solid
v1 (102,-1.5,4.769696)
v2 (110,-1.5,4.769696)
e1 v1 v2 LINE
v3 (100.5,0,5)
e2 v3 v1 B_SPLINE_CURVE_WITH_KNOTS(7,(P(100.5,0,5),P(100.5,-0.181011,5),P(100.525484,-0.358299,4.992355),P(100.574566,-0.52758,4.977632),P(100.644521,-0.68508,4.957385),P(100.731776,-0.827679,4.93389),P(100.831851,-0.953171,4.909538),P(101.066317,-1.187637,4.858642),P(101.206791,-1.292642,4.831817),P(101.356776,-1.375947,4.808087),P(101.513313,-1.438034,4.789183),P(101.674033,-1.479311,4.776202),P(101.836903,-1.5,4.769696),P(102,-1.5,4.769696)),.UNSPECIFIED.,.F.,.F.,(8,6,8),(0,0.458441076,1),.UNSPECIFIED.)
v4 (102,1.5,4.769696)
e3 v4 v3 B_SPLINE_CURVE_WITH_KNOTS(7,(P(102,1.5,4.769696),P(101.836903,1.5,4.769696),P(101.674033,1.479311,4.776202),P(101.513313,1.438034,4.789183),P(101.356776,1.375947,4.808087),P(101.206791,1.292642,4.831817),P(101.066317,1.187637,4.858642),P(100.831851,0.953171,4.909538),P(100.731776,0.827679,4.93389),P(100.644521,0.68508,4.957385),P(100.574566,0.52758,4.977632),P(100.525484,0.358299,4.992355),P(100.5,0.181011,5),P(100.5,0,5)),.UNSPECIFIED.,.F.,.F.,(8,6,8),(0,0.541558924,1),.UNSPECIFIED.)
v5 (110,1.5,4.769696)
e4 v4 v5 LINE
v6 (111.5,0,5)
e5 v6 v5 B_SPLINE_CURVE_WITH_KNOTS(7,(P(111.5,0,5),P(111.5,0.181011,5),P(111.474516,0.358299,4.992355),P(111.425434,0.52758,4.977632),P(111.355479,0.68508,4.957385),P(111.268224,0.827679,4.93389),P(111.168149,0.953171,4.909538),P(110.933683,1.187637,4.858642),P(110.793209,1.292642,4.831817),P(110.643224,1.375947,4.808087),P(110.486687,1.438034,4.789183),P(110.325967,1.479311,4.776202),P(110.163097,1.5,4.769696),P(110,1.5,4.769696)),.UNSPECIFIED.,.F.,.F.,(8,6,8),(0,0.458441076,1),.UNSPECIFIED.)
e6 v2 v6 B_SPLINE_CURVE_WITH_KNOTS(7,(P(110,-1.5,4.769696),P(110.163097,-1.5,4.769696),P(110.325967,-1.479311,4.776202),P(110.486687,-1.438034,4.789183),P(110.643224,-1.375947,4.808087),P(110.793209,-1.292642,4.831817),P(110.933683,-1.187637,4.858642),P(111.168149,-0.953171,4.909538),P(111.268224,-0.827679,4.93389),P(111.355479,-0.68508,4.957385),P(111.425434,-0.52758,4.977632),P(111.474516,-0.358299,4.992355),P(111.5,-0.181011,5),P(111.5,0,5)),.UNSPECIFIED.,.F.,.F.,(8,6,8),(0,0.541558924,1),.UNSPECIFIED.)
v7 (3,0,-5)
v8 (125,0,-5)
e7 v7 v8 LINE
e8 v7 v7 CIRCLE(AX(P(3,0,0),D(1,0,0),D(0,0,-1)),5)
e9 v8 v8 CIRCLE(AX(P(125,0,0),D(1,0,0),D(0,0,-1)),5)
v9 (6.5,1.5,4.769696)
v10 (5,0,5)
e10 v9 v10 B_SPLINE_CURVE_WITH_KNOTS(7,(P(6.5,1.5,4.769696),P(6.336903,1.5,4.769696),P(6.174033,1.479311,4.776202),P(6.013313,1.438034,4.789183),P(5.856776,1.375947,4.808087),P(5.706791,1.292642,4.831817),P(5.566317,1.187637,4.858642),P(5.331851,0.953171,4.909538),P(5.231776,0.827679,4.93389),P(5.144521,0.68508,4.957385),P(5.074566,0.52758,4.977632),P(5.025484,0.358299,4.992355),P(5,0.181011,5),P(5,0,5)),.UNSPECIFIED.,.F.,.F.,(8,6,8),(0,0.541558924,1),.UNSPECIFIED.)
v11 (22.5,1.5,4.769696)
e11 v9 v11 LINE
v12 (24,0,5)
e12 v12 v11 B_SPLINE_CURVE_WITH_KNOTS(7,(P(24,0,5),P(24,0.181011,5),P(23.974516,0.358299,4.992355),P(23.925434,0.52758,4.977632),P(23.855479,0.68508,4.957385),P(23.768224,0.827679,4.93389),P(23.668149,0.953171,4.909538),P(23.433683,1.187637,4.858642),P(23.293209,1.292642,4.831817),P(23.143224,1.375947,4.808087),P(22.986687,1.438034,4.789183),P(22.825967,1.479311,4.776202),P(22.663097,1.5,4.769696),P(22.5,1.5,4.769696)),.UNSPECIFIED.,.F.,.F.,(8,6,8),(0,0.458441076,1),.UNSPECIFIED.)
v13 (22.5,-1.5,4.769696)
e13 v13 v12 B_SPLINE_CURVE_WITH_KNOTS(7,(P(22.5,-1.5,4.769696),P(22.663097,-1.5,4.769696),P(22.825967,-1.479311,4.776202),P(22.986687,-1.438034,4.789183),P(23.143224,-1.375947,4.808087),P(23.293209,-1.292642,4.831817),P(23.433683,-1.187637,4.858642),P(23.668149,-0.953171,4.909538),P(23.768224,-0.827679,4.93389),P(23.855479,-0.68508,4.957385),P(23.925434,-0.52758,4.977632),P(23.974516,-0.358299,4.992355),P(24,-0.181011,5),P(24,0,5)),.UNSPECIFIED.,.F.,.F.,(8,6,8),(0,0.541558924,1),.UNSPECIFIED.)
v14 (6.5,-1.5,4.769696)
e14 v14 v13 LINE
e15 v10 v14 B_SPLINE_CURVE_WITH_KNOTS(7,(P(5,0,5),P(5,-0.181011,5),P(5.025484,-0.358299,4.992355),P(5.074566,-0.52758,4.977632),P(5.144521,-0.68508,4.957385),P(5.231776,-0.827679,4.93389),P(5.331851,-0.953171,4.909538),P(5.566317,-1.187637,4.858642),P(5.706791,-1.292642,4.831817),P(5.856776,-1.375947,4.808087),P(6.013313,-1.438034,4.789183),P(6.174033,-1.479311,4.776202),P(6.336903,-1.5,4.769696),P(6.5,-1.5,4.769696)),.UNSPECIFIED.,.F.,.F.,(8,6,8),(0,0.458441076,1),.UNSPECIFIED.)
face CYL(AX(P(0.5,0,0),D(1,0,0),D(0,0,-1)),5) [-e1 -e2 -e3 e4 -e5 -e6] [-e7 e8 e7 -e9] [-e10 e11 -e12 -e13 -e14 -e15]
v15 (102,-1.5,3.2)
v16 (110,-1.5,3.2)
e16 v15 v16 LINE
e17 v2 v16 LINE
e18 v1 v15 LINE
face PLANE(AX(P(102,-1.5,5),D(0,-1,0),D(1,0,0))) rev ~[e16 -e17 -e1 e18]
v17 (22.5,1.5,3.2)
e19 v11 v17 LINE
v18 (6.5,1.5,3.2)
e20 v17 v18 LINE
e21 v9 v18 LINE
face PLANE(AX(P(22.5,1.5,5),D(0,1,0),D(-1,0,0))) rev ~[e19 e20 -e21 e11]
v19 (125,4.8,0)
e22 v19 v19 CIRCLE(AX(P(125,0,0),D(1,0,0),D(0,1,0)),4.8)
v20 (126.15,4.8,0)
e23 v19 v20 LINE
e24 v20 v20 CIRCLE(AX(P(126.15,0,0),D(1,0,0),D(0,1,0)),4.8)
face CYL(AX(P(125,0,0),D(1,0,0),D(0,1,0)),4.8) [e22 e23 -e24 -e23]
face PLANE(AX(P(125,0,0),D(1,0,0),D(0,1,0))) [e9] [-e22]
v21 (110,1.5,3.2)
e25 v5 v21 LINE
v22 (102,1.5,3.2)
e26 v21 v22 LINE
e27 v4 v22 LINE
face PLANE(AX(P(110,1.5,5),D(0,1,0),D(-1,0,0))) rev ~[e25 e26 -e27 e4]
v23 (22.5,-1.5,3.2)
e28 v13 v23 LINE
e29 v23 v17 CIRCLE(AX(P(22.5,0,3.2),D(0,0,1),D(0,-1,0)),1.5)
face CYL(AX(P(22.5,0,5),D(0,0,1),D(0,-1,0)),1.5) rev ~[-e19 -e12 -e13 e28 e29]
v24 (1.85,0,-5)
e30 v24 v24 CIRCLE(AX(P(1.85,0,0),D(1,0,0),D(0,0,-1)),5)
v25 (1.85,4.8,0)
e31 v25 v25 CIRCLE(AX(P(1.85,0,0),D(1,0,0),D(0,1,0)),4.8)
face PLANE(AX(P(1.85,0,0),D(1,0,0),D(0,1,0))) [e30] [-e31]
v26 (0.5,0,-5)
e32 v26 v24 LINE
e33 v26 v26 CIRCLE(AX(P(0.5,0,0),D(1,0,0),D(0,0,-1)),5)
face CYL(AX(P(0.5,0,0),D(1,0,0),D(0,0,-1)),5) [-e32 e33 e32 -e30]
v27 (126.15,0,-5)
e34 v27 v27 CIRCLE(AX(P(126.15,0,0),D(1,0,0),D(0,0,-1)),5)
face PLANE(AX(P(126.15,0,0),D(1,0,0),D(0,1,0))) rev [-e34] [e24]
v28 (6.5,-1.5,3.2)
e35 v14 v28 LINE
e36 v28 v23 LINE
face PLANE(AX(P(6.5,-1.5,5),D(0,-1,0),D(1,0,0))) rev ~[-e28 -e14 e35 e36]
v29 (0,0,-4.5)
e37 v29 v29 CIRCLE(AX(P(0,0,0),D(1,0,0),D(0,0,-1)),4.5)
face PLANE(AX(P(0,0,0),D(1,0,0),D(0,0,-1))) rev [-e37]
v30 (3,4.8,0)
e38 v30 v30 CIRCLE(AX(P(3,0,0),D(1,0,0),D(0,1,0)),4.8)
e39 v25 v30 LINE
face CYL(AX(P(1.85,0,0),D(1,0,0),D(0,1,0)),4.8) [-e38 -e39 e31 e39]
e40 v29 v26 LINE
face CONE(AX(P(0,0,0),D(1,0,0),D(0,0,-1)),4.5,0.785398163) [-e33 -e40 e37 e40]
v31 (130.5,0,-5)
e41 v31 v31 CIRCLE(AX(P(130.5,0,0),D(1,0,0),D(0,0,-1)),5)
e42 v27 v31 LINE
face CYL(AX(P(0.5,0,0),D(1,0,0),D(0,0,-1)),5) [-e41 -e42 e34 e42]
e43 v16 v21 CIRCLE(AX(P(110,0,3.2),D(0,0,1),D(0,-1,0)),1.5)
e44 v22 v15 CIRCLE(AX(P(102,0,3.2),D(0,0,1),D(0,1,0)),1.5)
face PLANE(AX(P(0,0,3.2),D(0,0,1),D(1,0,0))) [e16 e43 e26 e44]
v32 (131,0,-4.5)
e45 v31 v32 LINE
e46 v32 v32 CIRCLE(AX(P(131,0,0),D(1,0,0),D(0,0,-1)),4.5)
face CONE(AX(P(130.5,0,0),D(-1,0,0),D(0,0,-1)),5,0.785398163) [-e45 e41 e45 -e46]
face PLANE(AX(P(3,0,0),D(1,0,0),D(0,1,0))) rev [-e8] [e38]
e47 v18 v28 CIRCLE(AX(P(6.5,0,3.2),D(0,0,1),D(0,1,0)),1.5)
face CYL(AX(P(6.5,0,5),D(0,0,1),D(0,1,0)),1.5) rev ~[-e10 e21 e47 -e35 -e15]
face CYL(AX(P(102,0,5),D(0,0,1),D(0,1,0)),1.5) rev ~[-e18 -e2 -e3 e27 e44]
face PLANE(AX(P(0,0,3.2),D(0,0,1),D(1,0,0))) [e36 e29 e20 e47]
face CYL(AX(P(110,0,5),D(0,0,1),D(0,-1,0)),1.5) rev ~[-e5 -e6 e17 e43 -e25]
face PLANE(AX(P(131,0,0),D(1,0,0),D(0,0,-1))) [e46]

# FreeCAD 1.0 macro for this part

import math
import FreeCAD as App
import Part
import Sketcher
Q = App.Units.Quantity


def add_polygon(sketch, points):
    """Adds a closed chain of lines whose ends are joined by coincident constraints."""
    first, n = sketch.GeometryCount, len(points)
    for a, b in zip(points, points[1:] + points[:1]):
        sketch.addGeometry(Part.LineSegment(App.Vector(*a, 0), App.Vector(*b, 0)), False)
    for i in range(n):
        sketch.addConstraint(Sketcher.Constraint("Coincident", first + i, 2, first + (i + 1) % n, 1))

doc = App.newDocument("Part")
body = doc.addObject("PartDesign::Body", "Body")

sketch1 = body.newObject("Sketcher::SketchObject", "Sketch")
sketch1.AttachmentSupport = (doc.getObject("XZ_Plane"), [""])
sketch1.MapMode = "FlatFace"
add_polygon(sketch1, [(0, 0), (131, 0), (131, -4.5), (130.5, -5), (0.5, -5), (0, -4.5)])
sketch1.addConstraint([
    Sketcher.Constraint("Horizontal", 0),
    Sketcher.Constraint("Vertical", 1),
    Sketcher.Constraint("Horizontal", 3),
    Sketcher.Constraint("Vertical", 5),
    Sketcher.Constraint("Coincident", 5, 2, -1, 1),
    Sketcher.Constraint("Perpendicular", 2, 4),
    Sketcher.Constraint("Horizontal", 1, 2, 4, 2),
    Sketcher.Constraint("Equal", 2, 4),
    Sketcher.Constraint("DistanceX", 0, 1, 0, 2, Q("131 mm")),
    Sketcher.Constraint("DistanceX", 3, 2, 3, 1, Q("130 mm")),
    Sketcher.Constraint("DistanceY", 1, 2, 1, 1, Q("4.5 mm")),
])
revolution = body.newObject("PartDesign::Revolution", "Revolution")
revolution.Profile = sketch1
revolution.ReferenceAxis = (sketch1, ["H_Axis"])
revolution.Angle = 360

sketch2 = body.newObject("Sketcher::SketchObject", "Sketch001")
sketch2.AttachmentSupport = (doc.getObject("XY_Plane"), [""])
sketch2.MapMode = "FlatFace"
add_polygon(sketch2, [(3, 9.6), (1.9, 9.6), (1.9, 4.8), (3, 4.8)])
sketch2.addConstraint([
    Sketcher.Constraint("Horizontal", 0),
    Sketcher.Constraint("Vertical", 1),
    Sketcher.Constraint("Horizontal", 2),
    Sketcher.Constraint("Vertical", 3),
    Sketcher.Constraint("DistanceY", 1, 2, 1, 1, Q("4.8 mm")),
    Sketcher.Constraint("DistanceX", -1, 1, 2, 2, Q("3 mm")),
    Sketcher.Constraint("DistanceX", 0, 2, 0, 1, Q("1.15 mm")),
    Sketcher.Constraint("DistanceY", -1, 1, 0, 2, Q("9.6 mm")),
])
groove = body.newObject("PartDesign::Groove", "Groove")
groove.Profile = sketch2
groove.ReferenceAxis = (sketch2, ["H_Axis"])
groove.Angle = 360

sketch3 = body.newObject("Sketcher::SketchObject", "Sketch002")
sketch3.AttachmentSupport = (doc.getObject("XY_Plane"), [""])
sketch3.MapMode = "FlatFace"
add_polygon(sketch3, [(126.2, 9.6), (125, 9.6), (125, 4.8), (126.2, 4.8)])
sketch3.addConstraint([
    Sketcher.Constraint("Horizontal", 0),
    Sketcher.Constraint("Vertical", 1),
    Sketcher.Constraint("Horizontal", 2),
    Sketcher.Constraint("Vertical", 3),
    Sketcher.Constraint("DistanceY", 1, 2, 1, 1, Q("4.8 mm")),
    Sketcher.Constraint("DistanceX", -1, 1, 0, 2, Q("125 mm")),
    Sketcher.Constraint("DistanceX", 0, 2, 0, 1, Q("1.15 mm")),
    Sketcher.Constraint("DistanceY", -1, 1, 0, 2, Q("9.6 mm")),
])
groove2 = body.newObject("PartDesign::Groove", "Groove001")
groove2.Profile = sketch3
groove2.ReferenceAxis = (sketch3, ["H_Axis"])
groove2.Angle = 360

sketch4 = body.newObject("Sketcher::SketchObject", "Sketch003")
sketch4.AttachmentSupport = (doc.getObject("XY_Plane"), [""])
sketch4.MapMode = "FlatFace"
sketch4.AttachmentOffset = App.Placement(App.Vector(0, 0, 5), App.Rotation())
sketch4.addGeometry([
    Part.LineSegment(App.Vector(22.5, 1.5, 0), App.Vector(6.5, 1.5, 0)),
    Part.ArcOfCircle(Part.Circle(App.Vector(6.5, 0, 0), App.Vector(0, 0, 1), 1.5), math.radians(90), math.radians(270)),
    Part.LineSegment(App.Vector(6.5, -1.5, 0), App.Vector(22.5, -1.5, 0)),
    Part.ArcOfCircle(Part.Circle(App.Vector(22.5, 0, 0), App.Vector(0, 0, 1), 1.5), math.radians(-90), math.radians(90)),
], False)
sketch4.addConstraint([
    Sketcher.Constraint("Tangent", 0, 2, 1, 1),
    Sketcher.Constraint("Tangent", 1, 2, 2, 1),
    Sketcher.Constraint("Tangent", 2, 2, 3, 1),
    Sketcher.Constraint("Tangent", 3, 2, 0, 1),
    Sketcher.Constraint("Horizontal", 0),
    Sketcher.Constraint("Horizontal", 2),
    Sketcher.Constraint("PointOnObject", 1, 3, -1),
    Sketcher.Constraint("Radius", 1, Q("1.5 mm")),
    Sketcher.Constraint("DistanceX", 0, 2, 0, 1, Q("16 mm")),
    Sketcher.Constraint("DistanceX", -1, 1, 1, 3, Q("6.5 mm")),
])
pocket1 = body.newObject("PartDesign::Pocket", "Pocket")
pocket1.Profile = sketch4
pocket1.Length = 1.8

sketch5 = body.newObject("Sketcher::SketchObject", "Sketch004")
sketch5.AttachmentSupport = (doc.getObject("XY_Plane"), [""])
sketch5.MapMode = "FlatFace"
sketch5.AttachmentOffset = App.Placement(App.Vector(0, 0, 5), App.Rotation())
sketch5.addGeometry([
    Part.LineSegment(App.Vector(110, 1.5, 0), App.Vector(102, 1.5, 0)),
    Part.ArcOfCircle(Part.Circle(App.Vector(102, 0, 0), App.Vector(0, 0, 1), 1.5), math.radians(90), math.radians(270)),
    Part.LineSegment(App.Vector(102, -1.5, 0), App.Vector(110, -1.5, 0)),
    Part.ArcOfCircle(Part.Circle(App.Vector(110, 0, 0), App.Vector(0, 0, 1), 1.5), math.radians(-90), math.radians(90)),
], False)
sketch5.addConstraint([
    Sketcher.Constraint("Tangent", 0, 2, 1, 1),
    Sketcher.Constraint("Tangent", 1, 2, 2, 1),
    Sketcher.Constraint("Tangent", 2, 2, 3, 1),
    Sketcher.Constraint("Tangent", 3, 2, 0, 1),
    Sketcher.Constraint("Horizontal", 0),
    Sketcher.Constraint("Horizontal", 2),
    Sketcher.Constraint("PointOnObject", 1, 3, -1),
    Sketcher.Constraint("Radius", 1, Q("1.5 mm")),
    Sketcher.Constraint("DistanceX", 0, 2, 0, 1, Q("8 mm")),
    Sketcher.Constraint("DistanceX", -1, 1, 1, 3, Q("102 mm")),
])
pocket2 = body.newObject("PartDesign::Pocket", "Pocket001")
pocket2.Profile = sketch5
pocket2.Length = 1.8

doc.recompute()
